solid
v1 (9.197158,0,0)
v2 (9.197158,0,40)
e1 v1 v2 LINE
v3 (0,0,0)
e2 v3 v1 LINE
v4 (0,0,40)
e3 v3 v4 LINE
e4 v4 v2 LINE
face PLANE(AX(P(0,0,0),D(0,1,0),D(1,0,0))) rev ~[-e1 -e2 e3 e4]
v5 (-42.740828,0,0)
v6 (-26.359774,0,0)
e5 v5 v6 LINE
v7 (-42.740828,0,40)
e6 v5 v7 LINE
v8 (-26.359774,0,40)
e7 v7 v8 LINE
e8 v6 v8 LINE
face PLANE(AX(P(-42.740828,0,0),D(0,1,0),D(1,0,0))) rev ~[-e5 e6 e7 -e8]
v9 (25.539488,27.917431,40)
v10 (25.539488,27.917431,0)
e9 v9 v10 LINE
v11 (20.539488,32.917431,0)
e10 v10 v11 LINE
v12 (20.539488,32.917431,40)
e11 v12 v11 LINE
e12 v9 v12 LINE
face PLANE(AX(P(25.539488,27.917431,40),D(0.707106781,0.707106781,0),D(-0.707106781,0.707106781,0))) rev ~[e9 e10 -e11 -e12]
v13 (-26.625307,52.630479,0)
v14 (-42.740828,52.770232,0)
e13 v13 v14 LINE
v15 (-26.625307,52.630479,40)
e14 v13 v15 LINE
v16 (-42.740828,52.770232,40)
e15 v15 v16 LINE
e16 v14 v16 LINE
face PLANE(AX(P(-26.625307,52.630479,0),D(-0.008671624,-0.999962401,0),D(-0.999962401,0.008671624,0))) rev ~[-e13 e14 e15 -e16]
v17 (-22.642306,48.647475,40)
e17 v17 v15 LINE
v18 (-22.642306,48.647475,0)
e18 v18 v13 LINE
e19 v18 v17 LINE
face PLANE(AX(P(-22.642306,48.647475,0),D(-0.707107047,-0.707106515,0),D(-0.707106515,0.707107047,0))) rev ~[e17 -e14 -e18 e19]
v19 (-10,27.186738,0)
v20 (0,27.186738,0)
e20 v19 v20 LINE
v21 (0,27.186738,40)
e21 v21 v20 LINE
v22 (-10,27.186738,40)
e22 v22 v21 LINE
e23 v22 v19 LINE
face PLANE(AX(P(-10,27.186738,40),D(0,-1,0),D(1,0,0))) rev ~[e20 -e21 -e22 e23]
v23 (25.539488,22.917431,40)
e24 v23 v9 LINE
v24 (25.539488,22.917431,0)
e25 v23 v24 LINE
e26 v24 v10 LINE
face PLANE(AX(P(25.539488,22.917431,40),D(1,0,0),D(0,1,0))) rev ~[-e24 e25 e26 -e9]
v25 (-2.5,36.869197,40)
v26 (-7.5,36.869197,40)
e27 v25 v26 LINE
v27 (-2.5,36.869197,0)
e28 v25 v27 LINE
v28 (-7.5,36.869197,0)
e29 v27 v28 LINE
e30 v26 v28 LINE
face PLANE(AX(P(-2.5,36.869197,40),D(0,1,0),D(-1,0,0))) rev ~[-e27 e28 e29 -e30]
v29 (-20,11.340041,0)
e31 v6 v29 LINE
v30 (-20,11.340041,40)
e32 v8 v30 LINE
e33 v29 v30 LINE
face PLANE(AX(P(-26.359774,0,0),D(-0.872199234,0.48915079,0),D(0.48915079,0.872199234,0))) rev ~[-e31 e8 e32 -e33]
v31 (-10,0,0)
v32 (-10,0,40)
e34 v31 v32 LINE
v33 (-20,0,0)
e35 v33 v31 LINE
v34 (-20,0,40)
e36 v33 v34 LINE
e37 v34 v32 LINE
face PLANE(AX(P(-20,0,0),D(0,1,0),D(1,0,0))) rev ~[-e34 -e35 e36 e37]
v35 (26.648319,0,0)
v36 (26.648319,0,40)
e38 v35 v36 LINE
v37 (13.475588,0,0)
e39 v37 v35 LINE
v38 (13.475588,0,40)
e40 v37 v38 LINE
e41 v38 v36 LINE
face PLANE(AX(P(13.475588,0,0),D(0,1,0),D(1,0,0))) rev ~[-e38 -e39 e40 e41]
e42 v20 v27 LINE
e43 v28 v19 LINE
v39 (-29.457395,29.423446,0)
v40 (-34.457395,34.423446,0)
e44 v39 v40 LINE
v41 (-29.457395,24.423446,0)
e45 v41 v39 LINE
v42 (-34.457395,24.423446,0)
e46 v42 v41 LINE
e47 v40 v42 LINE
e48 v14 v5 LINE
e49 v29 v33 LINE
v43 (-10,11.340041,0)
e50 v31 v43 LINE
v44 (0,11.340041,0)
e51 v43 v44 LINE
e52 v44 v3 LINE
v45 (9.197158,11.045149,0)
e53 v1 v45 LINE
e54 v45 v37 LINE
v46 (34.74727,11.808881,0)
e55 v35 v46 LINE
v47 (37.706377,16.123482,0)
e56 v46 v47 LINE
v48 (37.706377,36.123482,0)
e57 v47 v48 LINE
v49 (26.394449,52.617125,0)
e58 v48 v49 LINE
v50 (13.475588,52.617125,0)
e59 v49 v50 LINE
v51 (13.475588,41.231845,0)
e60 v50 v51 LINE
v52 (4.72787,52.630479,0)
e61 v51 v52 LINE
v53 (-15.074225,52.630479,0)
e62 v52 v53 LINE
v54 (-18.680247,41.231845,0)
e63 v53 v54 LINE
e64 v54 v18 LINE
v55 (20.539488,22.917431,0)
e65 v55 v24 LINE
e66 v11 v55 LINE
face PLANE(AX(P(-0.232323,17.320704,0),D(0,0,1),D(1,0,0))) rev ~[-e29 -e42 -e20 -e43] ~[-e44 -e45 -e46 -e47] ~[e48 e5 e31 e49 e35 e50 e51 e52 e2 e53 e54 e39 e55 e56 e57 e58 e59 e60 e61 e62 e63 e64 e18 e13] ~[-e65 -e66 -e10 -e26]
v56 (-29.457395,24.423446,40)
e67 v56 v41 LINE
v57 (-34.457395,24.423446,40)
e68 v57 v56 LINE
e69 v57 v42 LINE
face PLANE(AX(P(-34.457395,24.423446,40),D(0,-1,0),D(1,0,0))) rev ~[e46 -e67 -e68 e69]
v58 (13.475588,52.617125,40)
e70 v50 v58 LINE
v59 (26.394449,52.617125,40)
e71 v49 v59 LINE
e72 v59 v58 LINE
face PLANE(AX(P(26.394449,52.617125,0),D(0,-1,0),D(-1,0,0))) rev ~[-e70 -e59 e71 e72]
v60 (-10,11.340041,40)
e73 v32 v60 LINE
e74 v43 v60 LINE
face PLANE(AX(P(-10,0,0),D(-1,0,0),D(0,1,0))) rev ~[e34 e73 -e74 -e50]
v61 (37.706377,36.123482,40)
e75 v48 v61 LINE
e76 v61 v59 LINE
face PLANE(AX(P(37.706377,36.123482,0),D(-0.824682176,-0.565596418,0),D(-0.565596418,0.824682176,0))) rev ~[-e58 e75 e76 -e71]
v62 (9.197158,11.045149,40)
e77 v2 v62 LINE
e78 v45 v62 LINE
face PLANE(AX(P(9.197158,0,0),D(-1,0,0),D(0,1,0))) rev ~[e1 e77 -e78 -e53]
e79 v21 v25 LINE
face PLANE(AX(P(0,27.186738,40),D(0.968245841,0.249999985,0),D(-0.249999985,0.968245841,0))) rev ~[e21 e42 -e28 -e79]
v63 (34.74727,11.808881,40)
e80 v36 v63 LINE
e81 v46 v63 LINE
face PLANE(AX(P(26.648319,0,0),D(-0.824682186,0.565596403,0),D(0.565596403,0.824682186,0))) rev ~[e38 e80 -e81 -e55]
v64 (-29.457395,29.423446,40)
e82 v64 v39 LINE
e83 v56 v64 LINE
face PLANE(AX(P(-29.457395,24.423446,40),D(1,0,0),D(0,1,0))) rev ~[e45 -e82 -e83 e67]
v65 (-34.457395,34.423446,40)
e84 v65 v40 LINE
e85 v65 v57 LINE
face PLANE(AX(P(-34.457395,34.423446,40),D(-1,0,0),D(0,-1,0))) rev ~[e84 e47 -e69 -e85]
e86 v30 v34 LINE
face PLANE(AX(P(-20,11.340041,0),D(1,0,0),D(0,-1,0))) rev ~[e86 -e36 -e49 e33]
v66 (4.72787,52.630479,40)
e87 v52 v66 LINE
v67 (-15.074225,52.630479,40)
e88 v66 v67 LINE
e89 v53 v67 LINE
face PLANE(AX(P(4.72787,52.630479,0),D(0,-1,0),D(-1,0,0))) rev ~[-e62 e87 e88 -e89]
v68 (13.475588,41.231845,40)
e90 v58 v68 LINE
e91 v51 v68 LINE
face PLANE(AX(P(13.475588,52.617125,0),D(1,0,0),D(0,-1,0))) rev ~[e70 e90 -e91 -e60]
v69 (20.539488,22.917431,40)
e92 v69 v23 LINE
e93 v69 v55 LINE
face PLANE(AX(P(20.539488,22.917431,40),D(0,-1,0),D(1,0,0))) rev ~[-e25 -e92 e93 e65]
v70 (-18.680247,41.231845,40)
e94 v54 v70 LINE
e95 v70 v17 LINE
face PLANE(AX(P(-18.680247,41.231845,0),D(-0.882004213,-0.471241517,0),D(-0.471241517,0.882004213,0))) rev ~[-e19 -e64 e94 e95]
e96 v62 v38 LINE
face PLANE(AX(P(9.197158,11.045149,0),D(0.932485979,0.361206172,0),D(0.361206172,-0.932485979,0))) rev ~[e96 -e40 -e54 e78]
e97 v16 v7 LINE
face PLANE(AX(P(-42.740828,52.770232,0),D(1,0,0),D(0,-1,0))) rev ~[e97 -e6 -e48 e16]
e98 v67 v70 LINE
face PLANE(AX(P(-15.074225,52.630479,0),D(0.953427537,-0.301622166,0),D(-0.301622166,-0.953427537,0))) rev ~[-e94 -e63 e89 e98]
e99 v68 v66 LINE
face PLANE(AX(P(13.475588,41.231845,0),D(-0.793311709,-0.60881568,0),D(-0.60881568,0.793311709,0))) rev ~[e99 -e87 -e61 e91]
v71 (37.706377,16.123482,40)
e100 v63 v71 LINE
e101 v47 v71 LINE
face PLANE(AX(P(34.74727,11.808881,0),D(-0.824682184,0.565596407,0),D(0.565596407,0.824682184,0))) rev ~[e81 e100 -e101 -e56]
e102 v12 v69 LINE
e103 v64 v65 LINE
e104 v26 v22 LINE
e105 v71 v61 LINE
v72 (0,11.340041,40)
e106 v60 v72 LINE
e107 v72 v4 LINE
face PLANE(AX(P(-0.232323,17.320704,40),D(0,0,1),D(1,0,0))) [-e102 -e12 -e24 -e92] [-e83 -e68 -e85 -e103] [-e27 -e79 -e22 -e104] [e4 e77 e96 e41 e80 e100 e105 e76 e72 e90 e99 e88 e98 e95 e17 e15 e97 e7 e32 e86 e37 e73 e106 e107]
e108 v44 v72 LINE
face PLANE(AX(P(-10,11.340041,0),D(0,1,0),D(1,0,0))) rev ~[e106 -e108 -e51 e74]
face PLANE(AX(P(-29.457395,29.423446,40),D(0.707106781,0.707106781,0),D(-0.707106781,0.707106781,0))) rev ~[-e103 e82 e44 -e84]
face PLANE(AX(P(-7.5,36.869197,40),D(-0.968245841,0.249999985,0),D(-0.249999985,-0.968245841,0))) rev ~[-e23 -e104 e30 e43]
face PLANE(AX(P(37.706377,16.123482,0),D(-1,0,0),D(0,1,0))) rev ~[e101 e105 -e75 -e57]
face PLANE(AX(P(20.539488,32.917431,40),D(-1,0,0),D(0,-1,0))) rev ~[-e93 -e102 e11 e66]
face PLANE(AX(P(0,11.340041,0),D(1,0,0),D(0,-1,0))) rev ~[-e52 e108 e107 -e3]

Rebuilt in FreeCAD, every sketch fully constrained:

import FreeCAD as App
import Part
import Sketcher
from FreeCAD import Vector
Q = App.Units.Quantity

doc = App.newDocument("Part")
body = doc.addObject("PartDesign::Body", "Body")

# Sketch on XY plane
sketch1 = doc.addObject("Sketcher::SketchObject", "Sketch")
body.addObject(sketch1)
sketch1.AttachmentSupport = (doc.XY_Plane, [""])
sketch1.MapMode = "FlatFace"
sketch1.addGeometry(Part.LineSegment(Vector(-26.359774, 0, 0), Vector(-20, 11.340041, 0)), False)
sketch1.addGeometry(Part.LineSegment(Vector(-20, 11.340041, 0), Vector(-20, 0, 0)), False)
sketch1.addGeometry(Part.LineSegment(Vector(-20, 0, 0), Vector(-10, 0, 0)), False)
sketch1.addGeometry(Part.LineSegment(Vector(-10, 0, 0), Vector(-10, 11.340041, 0)), False)
sketch1.addGeometry(Part.LineSegment(Vector(-10, 11.340041, 0), Vector(0, 11.340041, 0)), False)
sketch1.addGeometry(Part.LineSegment(Vector(0, 11.340041, 0), Vector(0, 0, 0)), False)
sketch1.addGeometry(Part.LineSegment(Vector(0, 0, 0), Vector(9.197158, 0, 0)), False)
sketch1.addGeometry(Part.LineSegment(Vector(9.197158, 0, 0), Vector(9.197158, 11.045149, 0)), False)
sketch1.addGeometry(Part.LineSegment(Vector(9.197158, 11.045149, 0), Vector(13.475588, 0, 0)), False)
sketch1.addGeometry(Part.LineSegment(Vector(13.475588, 0, 0), Vector(26.648319, 0, 0)), False)
sketch1.addGeometry(Part.LineSegment(Vector(26.648319, 0, 0), Vector(34.74727, 11.808881, 0)), False)
sketch1.addGeometry(Part.LineSegment(Vector(34.74727, 11.808881, 0), Vector(37.706377, 16.123482, 0)), False)
sketch1.addGeometry(Part.LineSegment(Vector(37.706377, 16.123482, 0), Vector(37.706377, 36.123482, 0)), False)
sketch1.addGeometry(Part.LineSegment(Vector(37.706377, 36.123482, 0), Vector(26.394449, 52.617125, 0)), False)
sketch1.addGeometry(Part.LineSegment(Vector(26.394449, 52.617125, 0), Vector(13.475588, 52.617125, 0)), False)
sketch1.addGeometry(Part.LineSegment(Vector(13.475588, 52.617125, 0), Vector(13.475588, 41.231845, 0)), False)
sketch1.addGeometry(Part.LineSegment(Vector(13.475588, 41.231845, 0), Vector(4.72787, 52.630479, 0)), False)
sketch1.addGeometry(Part.LineSegment(Vector(4.72787, 52.630479, 0), Vector(-15.074225, 52.630479, 0)), False)
sketch1.addGeometry(Part.LineSegment(Vector(-15.074225, 52.630479, 0), Vector(-18.680247, 41.231845, 0)), False)
sketch1.addGeometry(Part.LineSegment(Vector(-18.680247, 41.231845, 0), Vector(-22.642306, 48.647475, 0)), False)
sketch1.addGeometry(Part.LineSegment(Vector(-22.642306, 48.647475, 0), Vector(-26.625307, 52.630479, 0)), False)
sketch1.addGeometry(Part.LineSegment(Vector(-26.625307, 52.630479, 0), Vector(-42.740828, 52.770232, 0)), False)
sketch1.addGeometry(Part.LineSegment(Vector(-42.740828, 52.770232, 0), Vector(-42.740828, 0, 0)), False)
sketch1.addGeometry(Part.LineSegment(Vector(-42.740828, 0, 0), Vector(-26.359774, 0, 0)), False)
sketch1.addConstraint(Sketcher.Constraint("Coincident", 0, 2, 1, 1))
sketch1.addConstraint(Sketcher.Constraint("Coincident", 1, 2, 2, 1))
sketch1.addConstraint(Sketcher.Constraint("Coincident", 2, 2, 3, 1))
sketch1.addConstraint(Sketcher.Constraint("Coincident", 3, 2, 4, 1))
sketch1.addConstraint(Sketcher.Constraint("Coincident", 4, 2, 5, 1))
sketch1.addConstraint(Sketcher.Constraint("Coincident", 5, 2, 6, 1))
sketch1.addConstraint(Sketcher.Constraint("Coincident", 6, 2, 7, 1))
sketch1.addConstraint(Sketcher.Constraint("Coincident", 7, 2, 8, 1))
sketch1.addConstraint(Sketcher.Constraint("Coincident", 8, 2, 9, 1))
sketch1.addConstraint(Sketcher.Constraint("Coincident", 9, 2, 10, 1))
sketch1.addConstraint(Sketcher.Constraint("Coincident", 10, 2, 11, 1))
sketch1.addConstraint(Sketcher.Constraint("Coincident", 11, 2, 12, 1))
sketch1.addConstraint(Sketcher.Constraint("Coincident", 12, 2, 13, 1))
sketch1.addConstraint(Sketcher.Constraint("Coincident", 13, 2, 14, 1))
sketch1.addConstraint(Sketcher.Constraint("Coincident", 14, 2, 15, 1))
sketch1.addConstraint(Sketcher.Constraint("Coincident", 15, 2, 16, 1))
sketch1.addConstraint(Sketcher.Constraint("Coincident", 16, 2, 17, 1))
sketch1.addConstraint(Sketcher.Constraint("Coincident", 17, 2, 18, 1))
sketch1.addConstraint(Sketcher.Constraint("Coincident", 18, 2, 19, 1))
sketch1.addConstraint(Sketcher.Constraint("Coincident", 19, 2, 20, 1))
sketch1.addConstraint(Sketcher.Constraint("Coincident", 20, 2, 21, 1))
sketch1.addConstraint(Sketcher.Constraint("Coincident", 21, 2, 22, 1))
sketch1.addConstraint(Sketcher.Constraint("Coincident", 22, 2, 23, 1))
sketch1.addConstraint(Sketcher.Constraint("Coincident", 23, 2, 0, 1))
sketch1.addConstraint(Sketcher.Constraint("Vertical", 1))
sketch1.addConstraint(Sketcher.Constraint("Horizontal", 2))
sketch1.addConstraint(Sketcher.Constraint("Vertical", 3))
sketch1.addConstraint(Sketcher.Constraint("Horizontal", 4))
sketch1.addConstraint(Sketcher.Constraint("Vertical", 5))
sketch1.addConstraint(Sketcher.Constraint("Horizontal", 6))
sketch1.addConstraint(Sketcher.Constraint("Vertical", 7))
sketch1.addConstraint(Sketcher.Constraint("Horizontal", 9))
sketch1.addConstraint(Sketcher.Constraint("Vertical", 12))
sketch1.addConstraint(Sketcher.Constraint("Horizontal", 14))
sketch1.addConstraint(Sketcher.Constraint("Vertical", 15))
sketch1.addConstraint(Sketcher.Constraint("Horizontal", 17))
sketch1.addConstraint(Sketcher.Constraint("Vertical", 22))
sketch1.addConstraint(Sketcher.Constraint("Horizontal", 23))
sketch1.addConstraint(Sketcher.Constraint("Coincident", 5, 2, -1, 1))
sketch1.addConstraint(Sketcher.Constraint("PointOnObject", 1, 2, -1))
sketch1.addConstraint(Sketcher.Constraint("PointOnObject", 8, 2, -1))
sketch1.addConstraint(Sketcher.Constraint("PointOnObject", 22, 2, -1))
sketch1.addConstraint(Sketcher.Constraint("Parallel", 10, 11))
sketch1.addConstraint(Sketcher.Constraint("Horizontal", 0, 2, 3, 2))
sketch1.addConstraint(Sketcher.Constraint("Horizontal", 15, 2, 18, 2))
sketch1.addConstraint(Sketcher.Constraint("Horizontal", 17, 2, 20, 2))
sketch1.addConstraint(Sketcher.Constraint("Vertical", 8, 2, 14, 2))
sketch1.addConstraint(Sketcher.Constraint("Equal", 2, 4))
sketch1.addConstraint(Sketcher.Constraint("DistanceX", 2, 1, 2, 2, Q("10 mm")))
sketch1.addConstraint(Sketcher.Constraint("DistanceY", 12, 1, 12, 2, Q("20 mm")))
sketch1.addConstraint(Sketcher.Constraint("Distance", 13, Q("19.999999 mm")))
sketch1.addConstraint(Sketcher.Constraint("DistanceX", 20, 2, 19, 2, Q("3.983001 mm")))
sketch1.addConstraint(Sketcher.Constraint("DistanceX", 9, 1, 9, 2, Q("13.172731 mm")))
sketch1.addConstraint(Sketcher.Constraint("DistanceX", 14, 2, 14, 1, Q("12.918861 mm")))
sketch1.addConstraint(Sketcher.Constraint("DistanceY", 1, 2, 1, 1, Q("11.340041 mm")))
sketch1.addConstraint(Sketcher.Constraint("DistanceY", 7, 1, 7, 2, Q("11.045149 mm")))
sketch1.addConstraint(Sketcher.Constraint("DistanceY", 15, 2, 15, 1, Q("11.38528 mm")))
sketch1.addConstraint(Sketcher.Constraint("DistanceY", 10, 2, 11, 2, Q("4.314601 mm")))
sketch1.addConstraint(Sketcher.Constraint("Distance", 8, Q("11.844842 mm")))
sketch1.addConstraint(Sketcher.Constraint("Distance", 10, Q("14.319311 mm")))
sketch1.addConstraint(Sketcher.Constraint("DistanceX", 6, 1, 6, 2, Q("9.197158 mm")))
sketch1.addConstraint(Sketcher.Constraint("DistanceX", 17, 2, 17, 1, Q("19.802095 mm")))
sketch1.addConstraint(Sketcher.Constraint("DistanceX", 23, 1, 23, 2, Q("16.381054 mm")))
sketch1.addConstraint(Sketcher.Constraint("DistanceY", 22, 2, 22, 1, Q("52.770232 mm")))
sketch1.addConstraint(Sketcher.Constraint("DistanceX", -1, 1, 10, 2, Q("34.74727 mm")))
sketch1.addConstraint(Sketcher.Constraint("DistanceX", -1, 1, 16, 2, Q("4.72787 mm")))
sketch1.addConstraint(Sketcher.Constraint("DistanceY", -1, 1, 16, 2, Q("52.630479 mm")))
sketch1.addConstraint(Sketcher.Constraint("DistanceX", 19, 2, 18, 2, Q("3.962059 mm")))
sketch1.addConstraint(Sketcher.Constraint("DistanceY", 18, 2, 19, 2, Q("7.41563 mm")))
sketch1.addConstraint(Sketcher.Constraint("DistanceX", 19, 2, 17, 2, Q("7.568081 mm")))
sketch1.addConstraint(Sketcher.Constraint("DistanceX", 21, 2, 20, 2, Q("16.115521 mm")))
pad1 = doc.addObject("PartDesign::Pad", "Pad")
body.addObject(pad1)
pad1.Profile = sketch1
pad1.Length = 40

# Sketch on XY plane
sketch2 = doc.addObject("Sketcher::SketchObject", "Sketch001")
body.addObject(sketch2)
sketch2.AttachmentSupport = (doc.XY_Plane, [""])
sketch2.MapMode = "FlatFace"
sketch2.AttachmentOffset = App.Placement(Vector(0, 0, 40), App.Rotation())
sketch2.addGeometry(Part.LineSegment(Vector(-34.457395, 34.423446, 0), Vector(-34.457395, 24.423446, 0)), False)
sketch2.addGeometry(Part.LineSegment(Vector(-34.457395, 24.423446, 0), Vector(-29.457395, 24.423446, 0)), False)
sketch2.addGeometry(Part.LineSegment(Vector(-29.457395, 24.423446, 0), Vector(-29.457395, 29.423446, 0)), False)
sketch2.addGeometry(Part.LineSegment(Vector(-29.457395, 29.423446, 0), Vector(-34.457395, 34.423446, 0)), False)
sketch2.addGeometry(Part.LineSegment(Vector(25.539488, 27.917431, 0), Vector(20.539488, 32.917431, 0)), False)
sketch2.addGeometry(Part.LineSegment(Vector(20.539488, 32.917431, 0), Vector(20.539488, 22.917431, 0)), False)
sketch2.addGeometry(Part.LineSegment(Vector(20.539488, 22.917431, 0), Vector(25.539488, 22.917431, 0)), False)
sketch2.addGeometry(Part.LineSegment(Vector(25.539488, 22.917431, 0), Vector(25.539488, 27.917431, 0)), False)
sketch2.addConstraint(Sketcher.Constraint("Coincident", 0, 2, 1, 1))
sketch2.addConstraint(Sketcher.Constraint("Coincident", 1, 2, 2, 1))
sketch2.addConstraint(Sketcher.Constraint("Coincident", 2, 2, 3, 1))
sketch2.addConstraint(Sketcher.Constraint("Coincident", 3, 2, 0, 1))
sketch2.addConstraint(Sketcher.Constraint("Coincident", 4, 2, 5, 1))
sketch2.addConstraint(Sketcher.Constraint("Coincident", 5, 2, 6, 1))
sketch2.addConstraint(Sketcher.Constraint("Coincident", 6, 2, 7, 1))
sketch2.addConstraint(Sketcher.Constraint("Coincident", 7, 2, 4, 1))
sketch2.addConstraint(Sketcher.Constraint("Vertical", 0))
sketch2.addConstraint(Sketcher.Constraint("Horizontal", 1))
sketch2.addConstraint(Sketcher.Constraint("Vertical", 2))
sketch2.addConstraint(Sketcher.Constraint("Vertical", 5))
sketch2.addConstraint(Sketcher.Constraint("Horizontal", 6))
sketch2.addConstraint(Sketcher.Constraint("Vertical", 7))
sketch2.addConstraint(Sketcher.Constraint("Parallel", 3, 4))
sketch2.addConstraint(Sketcher.Constraint("Equal", 1, 6))
sketch2.addConstraint(Sketcher.Constraint("Equal", 6, 2))
sketch2.addConstraint(Sketcher.Constraint("Equal", 0, 5))
sketch2.addConstraint(Sketcher.Constraint("DistanceX", 1, 1, 1, 2, Q("5 mm")))
sketch2.addConstraint(Sketcher.Constraint("DistanceY", 0, 2, 0, 1, Q("10 mm")))
sketch2.addConstraint(Sketcher.Constraint("DistanceY", -1, 1, 4, 2, Q("32.917431 mm")))
sketch2.addConstraint(Sketcher.Constraint("DistanceX", 0, 2, -1, 1, Q("34.457395 mm")))
sketch2.addConstraint(Sketcher.Constraint("DistanceY", -1, 1, 0, 2, Q("24.423446 mm")))
sketch2.addConstraint(Sketcher.Constraint("DistanceX", -1, 1, 4, 2, Q("20.539488 mm")))
pocket1 = doc.addObject("PartDesign::Pocket", "Pocket")
body.addObject(pocket1)
pocket1.Profile = sketch2
pocket1.Type = "ThroughAll"

# Sketch on XY plane
sketch3 = doc.addObject("Sketcher::SketchObject", "Sketch002")
body.addObject(sketch3)
sketch3.AttachmentSupport = (doc.XY_Plane, [""])
sketch3.MapMode = "FlatFace"
sketch3.AttachmentOffset = App.Placement(Vector(0, 0, 40), App.Rotation())
sketch3.addGeometry(Part.LineSegment(Vector(-7.5, 36.869197, 0), Vector(-10, 27.186738, 0)), False)
sketch3.addGeometry(Part.LineSegment(Vector(-10, 27.186738, 0), Vector(0, 27.186738, 0)), False)
sketch3.addGeometry(Part.LineSegment(Vector(0, 27.186738, 0), Vector(-2.5, 36.869197, 0)), False)
sketch3.addGeometry(Part.LineSegment(Vector(-2.5, 36.869197, 0), Vector(-7.5, 36.869197, 0)), False)
sketch3.addConstraint(Sketcher.Constraint("Coincident", 0, 2, 1, 1))
sketch3.addConstraint(Sketcher.Constraint("Coincident", 1, 2, 2, 1))
sketch3.addConstraint(Sketcher.Constraint("Coincident", 2, 2, 3, 1))
sketch3.addConstraint(Sketcher.Constraint("Coincident", 3, 2, 0, 1))
sketch3.addConstraint(Sketcher.Constraint("Horizontal", 1))
sketch3.addConstraint(Sketcher.Constraint("Horizontal", 3))
sketch3.addConstraint(Sketcher.Constraint("PointOnObject", 1, 2, -2))
sketch3.addConstraint(Sketcher.Constraint("Equal", 0, 2))
sketch3.addConstraint(Sketcher.Constraint("DistanceX", 1, 1, 1, 2, Q("10 mm")))
sketch3.addConstraint(Sketcher.Constraint("DistanceX", 3, 2, 3, 1, Q("5 mm")))
sketch3.addConstraint(Sketcher.Constraint("Distance", 0, Q("10.000001 mm")))
sketch3.addConstraint(Sketcher.Constraint("DistanceY", -1, 1, 0, 2, Q("27.186738 mm")))
pocket2 = doc.addObject("PartDesign::Pocket", "Pocket001")
body.addObject(pocket2)
pocket2.Profile = sketch3
pocket2.Type = "ThroughAll"

doc.recompute()
